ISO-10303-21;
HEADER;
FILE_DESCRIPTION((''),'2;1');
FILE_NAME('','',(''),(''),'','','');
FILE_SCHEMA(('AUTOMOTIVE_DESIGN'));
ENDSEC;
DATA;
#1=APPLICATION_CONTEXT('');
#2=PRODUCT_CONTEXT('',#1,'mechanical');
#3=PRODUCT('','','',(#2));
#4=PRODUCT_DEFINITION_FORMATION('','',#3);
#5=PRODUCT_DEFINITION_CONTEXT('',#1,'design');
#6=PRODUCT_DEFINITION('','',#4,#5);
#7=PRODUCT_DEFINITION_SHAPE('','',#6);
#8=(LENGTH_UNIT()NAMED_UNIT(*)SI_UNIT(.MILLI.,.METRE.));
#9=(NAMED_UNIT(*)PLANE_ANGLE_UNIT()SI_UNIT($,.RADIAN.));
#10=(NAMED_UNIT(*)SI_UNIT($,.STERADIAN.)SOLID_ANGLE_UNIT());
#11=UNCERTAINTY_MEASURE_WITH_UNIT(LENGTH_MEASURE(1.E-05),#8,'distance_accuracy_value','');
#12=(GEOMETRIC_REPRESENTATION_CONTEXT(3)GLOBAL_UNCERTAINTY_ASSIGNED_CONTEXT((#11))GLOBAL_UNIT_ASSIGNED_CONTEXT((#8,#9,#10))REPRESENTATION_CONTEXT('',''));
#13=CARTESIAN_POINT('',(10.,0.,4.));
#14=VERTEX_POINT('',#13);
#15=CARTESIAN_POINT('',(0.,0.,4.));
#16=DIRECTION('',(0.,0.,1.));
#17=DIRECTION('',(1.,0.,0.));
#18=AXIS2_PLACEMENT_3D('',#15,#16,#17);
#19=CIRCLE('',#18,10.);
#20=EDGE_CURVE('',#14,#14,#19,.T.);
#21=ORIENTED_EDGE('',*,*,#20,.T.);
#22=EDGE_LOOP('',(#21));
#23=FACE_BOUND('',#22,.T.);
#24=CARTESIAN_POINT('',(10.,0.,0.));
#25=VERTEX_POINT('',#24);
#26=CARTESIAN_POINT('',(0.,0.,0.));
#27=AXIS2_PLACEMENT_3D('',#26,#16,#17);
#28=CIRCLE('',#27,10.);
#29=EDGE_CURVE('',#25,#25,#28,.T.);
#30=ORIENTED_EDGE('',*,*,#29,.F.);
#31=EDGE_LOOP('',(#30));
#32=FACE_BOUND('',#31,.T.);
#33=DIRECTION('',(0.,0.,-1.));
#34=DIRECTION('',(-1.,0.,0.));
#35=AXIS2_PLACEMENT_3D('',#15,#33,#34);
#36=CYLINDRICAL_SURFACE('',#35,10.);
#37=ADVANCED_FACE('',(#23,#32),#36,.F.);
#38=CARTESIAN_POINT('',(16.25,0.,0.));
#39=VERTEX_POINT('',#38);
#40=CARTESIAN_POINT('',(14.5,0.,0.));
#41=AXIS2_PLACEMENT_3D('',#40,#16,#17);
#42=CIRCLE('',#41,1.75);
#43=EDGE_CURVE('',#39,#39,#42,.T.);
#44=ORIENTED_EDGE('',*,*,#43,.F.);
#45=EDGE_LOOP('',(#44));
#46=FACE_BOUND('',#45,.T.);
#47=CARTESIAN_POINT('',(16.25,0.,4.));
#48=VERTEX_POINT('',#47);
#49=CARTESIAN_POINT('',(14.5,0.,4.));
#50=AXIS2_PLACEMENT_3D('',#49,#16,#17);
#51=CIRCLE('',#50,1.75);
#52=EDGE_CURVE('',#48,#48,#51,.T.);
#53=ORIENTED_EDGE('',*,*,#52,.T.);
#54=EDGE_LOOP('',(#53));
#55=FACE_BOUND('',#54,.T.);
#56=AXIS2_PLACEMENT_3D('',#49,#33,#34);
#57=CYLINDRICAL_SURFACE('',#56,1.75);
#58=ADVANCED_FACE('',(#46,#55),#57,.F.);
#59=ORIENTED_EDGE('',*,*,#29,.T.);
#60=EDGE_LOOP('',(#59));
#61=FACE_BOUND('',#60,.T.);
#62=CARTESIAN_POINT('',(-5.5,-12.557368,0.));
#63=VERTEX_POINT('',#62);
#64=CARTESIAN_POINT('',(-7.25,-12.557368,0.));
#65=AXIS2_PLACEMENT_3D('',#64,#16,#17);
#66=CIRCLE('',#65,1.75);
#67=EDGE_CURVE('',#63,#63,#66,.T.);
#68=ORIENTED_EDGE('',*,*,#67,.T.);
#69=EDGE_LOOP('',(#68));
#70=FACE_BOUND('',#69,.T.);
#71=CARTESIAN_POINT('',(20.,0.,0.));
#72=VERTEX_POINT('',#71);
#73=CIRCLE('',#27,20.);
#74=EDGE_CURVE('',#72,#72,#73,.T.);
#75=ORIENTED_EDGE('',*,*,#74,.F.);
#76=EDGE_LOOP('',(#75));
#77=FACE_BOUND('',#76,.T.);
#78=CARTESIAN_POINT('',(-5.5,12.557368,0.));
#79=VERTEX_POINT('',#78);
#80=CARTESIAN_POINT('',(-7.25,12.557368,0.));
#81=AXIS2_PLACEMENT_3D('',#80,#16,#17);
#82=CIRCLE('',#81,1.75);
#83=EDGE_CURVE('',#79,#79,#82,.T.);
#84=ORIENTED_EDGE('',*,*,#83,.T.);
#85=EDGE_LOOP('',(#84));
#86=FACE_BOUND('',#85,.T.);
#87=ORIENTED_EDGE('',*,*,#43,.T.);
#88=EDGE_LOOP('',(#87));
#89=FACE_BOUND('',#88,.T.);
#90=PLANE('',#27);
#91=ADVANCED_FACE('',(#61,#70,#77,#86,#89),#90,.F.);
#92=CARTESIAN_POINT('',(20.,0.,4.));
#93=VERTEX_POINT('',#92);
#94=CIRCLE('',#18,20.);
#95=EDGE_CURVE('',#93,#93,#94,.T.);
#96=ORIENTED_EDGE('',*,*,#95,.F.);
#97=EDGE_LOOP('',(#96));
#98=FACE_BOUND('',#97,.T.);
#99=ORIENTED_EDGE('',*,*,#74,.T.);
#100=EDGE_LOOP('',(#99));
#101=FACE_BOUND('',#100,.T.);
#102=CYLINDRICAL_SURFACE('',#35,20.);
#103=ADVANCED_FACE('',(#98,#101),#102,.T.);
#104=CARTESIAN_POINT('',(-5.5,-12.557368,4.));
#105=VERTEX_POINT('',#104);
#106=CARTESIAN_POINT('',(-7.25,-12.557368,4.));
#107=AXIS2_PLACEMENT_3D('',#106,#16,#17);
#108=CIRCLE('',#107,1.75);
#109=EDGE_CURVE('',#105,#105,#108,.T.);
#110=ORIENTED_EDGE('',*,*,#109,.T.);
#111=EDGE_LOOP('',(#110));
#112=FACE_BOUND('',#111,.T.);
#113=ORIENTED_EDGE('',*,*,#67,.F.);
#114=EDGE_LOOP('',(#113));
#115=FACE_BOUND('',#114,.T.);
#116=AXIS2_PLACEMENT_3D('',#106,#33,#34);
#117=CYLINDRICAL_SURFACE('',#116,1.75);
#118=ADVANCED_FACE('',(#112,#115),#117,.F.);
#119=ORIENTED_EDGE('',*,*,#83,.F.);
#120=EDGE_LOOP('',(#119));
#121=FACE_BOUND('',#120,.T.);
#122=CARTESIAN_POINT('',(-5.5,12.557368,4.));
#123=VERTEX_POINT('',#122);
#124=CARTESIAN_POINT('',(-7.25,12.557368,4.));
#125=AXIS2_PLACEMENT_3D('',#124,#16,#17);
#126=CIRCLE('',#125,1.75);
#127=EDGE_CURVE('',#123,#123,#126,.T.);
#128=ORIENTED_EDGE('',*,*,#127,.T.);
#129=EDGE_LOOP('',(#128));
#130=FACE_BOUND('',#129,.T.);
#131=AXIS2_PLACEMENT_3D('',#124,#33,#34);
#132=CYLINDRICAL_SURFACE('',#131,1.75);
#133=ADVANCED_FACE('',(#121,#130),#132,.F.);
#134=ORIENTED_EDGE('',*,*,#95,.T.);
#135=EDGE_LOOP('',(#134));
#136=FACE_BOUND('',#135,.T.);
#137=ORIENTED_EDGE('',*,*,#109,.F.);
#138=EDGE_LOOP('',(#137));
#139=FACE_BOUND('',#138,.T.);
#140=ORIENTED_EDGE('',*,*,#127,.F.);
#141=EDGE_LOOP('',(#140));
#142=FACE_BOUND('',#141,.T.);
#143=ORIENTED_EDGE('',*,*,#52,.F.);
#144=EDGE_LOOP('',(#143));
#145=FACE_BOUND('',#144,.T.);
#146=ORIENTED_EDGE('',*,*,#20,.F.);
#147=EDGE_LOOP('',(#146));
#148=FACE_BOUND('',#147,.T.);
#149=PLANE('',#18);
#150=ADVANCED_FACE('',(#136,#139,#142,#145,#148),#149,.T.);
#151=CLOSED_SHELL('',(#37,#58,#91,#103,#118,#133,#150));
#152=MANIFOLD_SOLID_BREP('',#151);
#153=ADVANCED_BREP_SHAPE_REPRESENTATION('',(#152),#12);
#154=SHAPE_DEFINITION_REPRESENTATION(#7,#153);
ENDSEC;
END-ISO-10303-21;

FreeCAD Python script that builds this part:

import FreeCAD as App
import Part
import Sketcher
Q = App.Units.Quantity

doc = App.newDocument("Part")
body = doc.addObject("PartDesign::Body", "Body")

# Sketch on XY plane
sketch1 = doc.addObject("Sketcher::SketchObject", "Sketch")
body.addObject(sketch1)
sketch1.AttachmentSupport = (doc.XY_Plane, [""])
sketch1.MapMode = "FlatFace"
sketch1.addGeometry(Part.Circle(App.Vector(0, 0, 0), App.Vector(0, 0, 1), 20), False)
sketch1.addGeometry(Part.Circle(App.Vector(-7.2, -12.6, 0), App.Vector(0, 0, 1), 1.8), False)
sketch1.addGeometry(Part.Circle(App.Vector(0, 0, 0), App.Vector(0, 0, 1), 10), False)
sketch1.addGeometry(Part.Circle(App.Vector(-7.2, 12.6, 0), App.Vector(0, 0, 1), 1.8), False)
sketch1.addGeometry(Part.Circle(App.Vector(14.5, 0, 0), App.Vector(0, 0, 1), 1.8), False)
sketch1.addConstraint(Sketcher.Constraint("Coincident", 0, 3, -1, 1))
sketch1.addConstraint(Sketcher.Constraint("Coincident", 2, 3, -1, 1))
sketch1.addConstraint(Sketcher.Constraint("Equal", 1, 3))
sketch1.addConstraint(Sketcher.Constraint("Equal", 3, 4))
sketch1.addConstraint(Sketcher.Constraint("Symmetric", 1, 3, 3, 3, -1))
sketch1.addConstraint(Sketcher.Constraint("PointOnObject", 4, 3, -1))
sketch1.addConstraint(Sketcher.Constraint("Diameter", 0, Q("40 mm")))
sketch1.addConstraint(Sketcher.Constraint("Diameter", 2, Q("20 mm")))
sketch1.addConstraint(Sketcher.Constraint("Diameter", 1, Q("3.5 mm")))
sketch1.addConstraint(Sketcher.Constraint("DistanceX", -1, 1, 4, 3, Q("14.5 mm")))
sketch1.addConstraint(Sketcher.Constraint("DistanceX", 1, 3, -1, 1, Q("7.25 mm")))
sketch1.addConstraint(Sketcher.Constraint("DistanceY", 1, 3, -1, 1, Q("12.557368 mm")))
pad1 = doc.addObject("PartDesign::Pad", "Pad")
body.addObject(pad1)
pad1.Profile = sketch1
pad1.Length = 4

doc.recompute()
